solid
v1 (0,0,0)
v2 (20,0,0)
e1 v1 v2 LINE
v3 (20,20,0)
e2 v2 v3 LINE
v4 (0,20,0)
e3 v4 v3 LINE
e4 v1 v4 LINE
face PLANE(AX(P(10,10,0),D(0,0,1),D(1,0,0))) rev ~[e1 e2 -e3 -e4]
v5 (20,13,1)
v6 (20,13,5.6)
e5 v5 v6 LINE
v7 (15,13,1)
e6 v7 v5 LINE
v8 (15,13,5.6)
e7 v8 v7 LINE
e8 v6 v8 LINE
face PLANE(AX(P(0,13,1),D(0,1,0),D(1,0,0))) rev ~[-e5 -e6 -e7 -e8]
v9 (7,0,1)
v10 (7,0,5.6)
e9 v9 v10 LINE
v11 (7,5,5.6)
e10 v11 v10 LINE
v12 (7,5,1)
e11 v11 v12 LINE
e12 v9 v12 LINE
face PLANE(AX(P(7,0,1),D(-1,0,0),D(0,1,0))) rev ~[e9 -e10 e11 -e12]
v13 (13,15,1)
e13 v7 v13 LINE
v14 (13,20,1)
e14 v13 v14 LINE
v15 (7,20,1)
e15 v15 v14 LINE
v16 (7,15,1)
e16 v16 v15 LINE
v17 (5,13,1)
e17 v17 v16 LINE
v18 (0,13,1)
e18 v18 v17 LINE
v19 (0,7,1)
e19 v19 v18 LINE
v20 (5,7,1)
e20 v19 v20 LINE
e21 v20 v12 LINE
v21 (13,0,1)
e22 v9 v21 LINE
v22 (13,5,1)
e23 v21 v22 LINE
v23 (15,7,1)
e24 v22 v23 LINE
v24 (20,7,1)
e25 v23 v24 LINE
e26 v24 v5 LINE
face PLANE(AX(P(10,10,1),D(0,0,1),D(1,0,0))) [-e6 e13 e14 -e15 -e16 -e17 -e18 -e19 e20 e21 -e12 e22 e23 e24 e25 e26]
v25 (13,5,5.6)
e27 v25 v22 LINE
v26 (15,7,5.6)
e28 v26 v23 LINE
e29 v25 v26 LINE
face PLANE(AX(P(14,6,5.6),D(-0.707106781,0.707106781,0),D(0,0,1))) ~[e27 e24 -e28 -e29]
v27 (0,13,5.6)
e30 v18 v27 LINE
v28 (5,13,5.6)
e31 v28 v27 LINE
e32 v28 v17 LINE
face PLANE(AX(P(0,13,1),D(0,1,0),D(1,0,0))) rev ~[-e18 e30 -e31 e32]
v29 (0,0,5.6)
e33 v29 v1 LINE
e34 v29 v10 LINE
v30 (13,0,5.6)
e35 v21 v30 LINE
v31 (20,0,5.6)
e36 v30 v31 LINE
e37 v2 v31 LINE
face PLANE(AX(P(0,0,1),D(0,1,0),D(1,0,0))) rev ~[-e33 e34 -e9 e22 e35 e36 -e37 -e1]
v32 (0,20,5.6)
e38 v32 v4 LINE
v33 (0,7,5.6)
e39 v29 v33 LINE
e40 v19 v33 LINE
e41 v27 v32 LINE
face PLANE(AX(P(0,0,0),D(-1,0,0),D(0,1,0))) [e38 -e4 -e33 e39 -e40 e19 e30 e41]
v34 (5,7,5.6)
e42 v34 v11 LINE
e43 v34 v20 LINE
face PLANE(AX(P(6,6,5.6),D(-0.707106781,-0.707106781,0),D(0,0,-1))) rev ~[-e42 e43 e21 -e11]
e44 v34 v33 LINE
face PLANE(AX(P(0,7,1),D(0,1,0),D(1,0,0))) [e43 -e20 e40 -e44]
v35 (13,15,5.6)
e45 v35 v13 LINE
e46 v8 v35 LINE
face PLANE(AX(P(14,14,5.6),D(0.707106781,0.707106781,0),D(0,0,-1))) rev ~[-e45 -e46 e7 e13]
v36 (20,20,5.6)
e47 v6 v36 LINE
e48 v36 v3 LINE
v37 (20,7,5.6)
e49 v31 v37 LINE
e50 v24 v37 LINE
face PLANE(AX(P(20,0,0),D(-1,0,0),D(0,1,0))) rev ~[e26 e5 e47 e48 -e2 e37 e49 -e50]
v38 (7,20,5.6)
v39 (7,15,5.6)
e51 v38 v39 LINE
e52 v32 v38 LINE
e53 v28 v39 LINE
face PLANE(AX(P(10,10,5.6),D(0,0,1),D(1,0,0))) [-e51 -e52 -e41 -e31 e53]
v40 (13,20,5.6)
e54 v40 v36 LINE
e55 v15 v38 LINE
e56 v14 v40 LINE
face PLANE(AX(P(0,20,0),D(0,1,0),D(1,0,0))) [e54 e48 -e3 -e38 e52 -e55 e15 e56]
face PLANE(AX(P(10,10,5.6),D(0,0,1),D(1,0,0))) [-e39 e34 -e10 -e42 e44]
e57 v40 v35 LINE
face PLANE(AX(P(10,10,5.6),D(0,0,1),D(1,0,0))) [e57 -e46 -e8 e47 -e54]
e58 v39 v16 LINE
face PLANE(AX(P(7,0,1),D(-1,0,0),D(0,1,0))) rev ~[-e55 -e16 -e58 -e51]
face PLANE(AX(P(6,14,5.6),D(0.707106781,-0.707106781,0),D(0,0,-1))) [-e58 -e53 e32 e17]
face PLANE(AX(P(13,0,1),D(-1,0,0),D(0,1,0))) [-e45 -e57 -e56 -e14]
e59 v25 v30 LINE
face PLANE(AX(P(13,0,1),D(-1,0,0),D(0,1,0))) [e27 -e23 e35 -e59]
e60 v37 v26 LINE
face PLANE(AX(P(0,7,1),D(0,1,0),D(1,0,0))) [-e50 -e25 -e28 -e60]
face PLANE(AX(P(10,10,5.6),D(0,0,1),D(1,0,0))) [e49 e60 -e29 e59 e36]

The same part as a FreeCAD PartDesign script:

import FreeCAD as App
import Part
import Sketcher


def edges_at(feature, points):
    """Names of the edges that pass closest to the given points."""
    edges = feature.Shape.Edges
    near = lambda p: min(range(len(edges)), key=lambda i: edges[i].distToShape(Part.Vertex(*p))[0])
    return sorted({f"Edge{near(p) + 1}" for p in points})

doc = App.newDocument("Part")
params = doc.addObject("Spreadsheet::Sheet", "Params")
for row, (alias, value) in enumerate([
    ("sketch1_width", "20 mm"),
    ("sketch1_height", "6 mm"),
    ("pad1_length", "10 mm"),
    ("sketch2_width", "6 mm"),
    ("sketch2_height", "20 mm"),
    ("pad2_length", "10 mm"),
    ("sketch3_width", "20 mm"),
    ("pad3_length", "4.6 mm"),
    ("chamfer_size", "2 mm"),
    ("sketch4_width", "20 mm"),
    ("pad4_length", "1 mm"),
], start=1):
    params.set(f"A{row}", alias)
    params.set(f"B{row}", "=" + value)
    params.setAlias(f"B{row}", alias)

body = doc.addObject("PartDesign::Body", "Body")

# Sketch on XY plane
sketch1 = body.newObject("Sketcher::SketchObject", "Sketch")
sketch1.AttachmentSupport = (doc.getObject("XY_Plane"), [""])
sketch1.MapMode = "FlatFace"
sketch1.addGeometry([
    Part.LineSegment(App.Vector(0, 13, 0), App.Vector(0, 7, 0)),
    Part.LineSegment(App.Vector(0, 7, 0), App.Vector(20, 7, 0)),
    Part.LineSegment(App.Vector(20, 7, 0), App.Vector(20, 13, 0)),
    Part.LineSegment(App.Vector(20, 13, 0), App.Vector(0, 13, 0)),
], False)
sketch1.addConstraint([
    Sketcher.Constraint("Coincident", 0, 2, 1, 1),
    Sketcher.Constraint("Coincident", 1, 2, 2, 1),
    Sketcher.Constraint("Coincident", 2, 2, 3, 1),
    Sketcher.Constraint("Coincident", 3, 2, 0, 1),
    Sketcher.Constraint("Vertical", 0),
    Sketcher.Constraint("Horizontal", 1),
    Sketcher.Constraint("Vertical", 2),
    Sketcher.Constraint("Horizontal", 3),
    Sketcher.Constraint("PointOnObject", 0, 2, -2),
    Sketcher.Constraint("DistanceX", 1, 1, 1, 2, 20.0),
    Sketcher.Constraint("DistanceY", 0, 2, 0, 1, 6.0),
    Sketcher.Constraint("DistanceY", -1, 1, 0, 2, 7.0),
])
sketch1.setExpression("Constraints[9]", "Params.sketch1_width")
sketch1.setExpression("Constraints[10]", "Params.sketch1_height")
pad1 = body.newObject("PartDesign::Pad", "Pad")
pad1.Profile = sketch1
pad1.setExpression("Length", "Params.pad1_length")
body2 = doc.addObject("PartDesign::Body", "Body001")

# Sketch on XY plane
sketch2 = body2.newObject("Sketcher::SketchObject", "Sketch001")
sketch2.AttachmentSupport = (doc.getObject("XY_Plane001"), [""])
sketch2.MapMode = "FlatFace"
sketch2.addGeometry([
    Part.LineSegment(App.Vector(7, 20, 0), App.Vector(7, 0, 0)),
    Part.LineSegment(App.Vector(7, 0, 0), App.Vector(13, 0, 0)),
    Part.LineSegment(App.Vector(13, 0, 0), App.Vector(13, 20, 0)),
    Part.LineSegment(App.Vector(13, 20, 0), App.Vector(7, 20, 0)),
], False)
sketch2.addConstraint([
    Sketcher.Constraint("Coincident", 0, 2, 1, 1),
    Sketcher.Constraint("Coincident", 1, 2, 2, 1),
    Sketcher.Constraint("Coincident", 2, 2, 3, 1),
    Sketcher.Constraint("Coincident", 3, 2, 0, 1),
    Sketcher.Constraint("Vertical", 0),
    Sketcher.Constraint("Horizontal", 1),
    Sketcher.Constraint("Vertical", 2),
    Sketcher.Constraint("Horizontal", 3),
    Sketcher.Constraint("PointOnObject", 0, 2, -1),
    Sketcher.Constraint("DistanceX", 1, 1, 1, 2, 6.0),
    Sketcher.Constraint("DistanceY", 0, 2, 0, 1, 20.0),
    Sketcher.Constraint("DistanceX", -1, 1, 0, 2, 7.0),
])
sketch2.setExpression("Constraints[9]", "Params.sketch2_width")
sketch2.setExpression("Constraints[10]", "Params.sketch2_height")
pad2 = body2.newObject("PartDesign::Pad", "Pad001")
pad2.Profile = sketch2
pad2.setExpression("Length", "Params.pad2_length")
doc.recompute()

boolean = body2.newObject("PartDesign::Boolean", "Boolean")
boolean.Type = "Fuse"
boolean.addObjects([body])
body3 = doc.addObject("PartDesign::Body", "Body002")
body3.AllowCompound = True

# Sketch on XY plane
sketch3 = body3.newObject("Sketcher::SketchObject", "Sketch002")
sketch3.AttachmentSupport = (doc.getObject("XY_Plane002"), [""])
sketch3.MapMode = "FlatFace"
sketch3.addGeometry([
    Part.LineSegment(App.Vector(0, 20, 0), App.Vector(0, 0, 0)),
    Part.LineSegment(App.Vector(0, 0, 0), App.Vector(20, 0, 0)),
    Part.LineSegment(App.Vector(20, 0, 0), App.Vector(20, 20, 0)),
    Part.LineSegment(App.Vector(20, 20, 0), App.Vector(0, 20, 0)),
], False)
sketch3.addConstraint([
    Sketcher.Constraint("Coincident", 0, 2, 1, 1),
    Sketcher.Constraint("Coincident", 1, 2, 2, 1),
    Sketcher.Constraint("Coincident", 2, 2, 3, 1),
    Sketcher.Constraint("Coincident", 3, 2, 0, 1),
    Sketcher.Constraint("Vertical", 0),
    Sketcher.Constraint("Horizontal", 1),
    Sketcher.Constraint("Vertical", 2),
    Sketcher.Constraint("Horizontal", 3),
    Sketcher.Constraint("Coincident", 0, 2, -1, 1),
    Sketcher.Constraint("Equal", 3, 0),
    Sketcher.Constraint("DistanceX", 1, 1, 1, 2, 20.0),
])
sketch3.setExpression("Constraints[10]", "Params.sketch3_width")
pad3 = body3.newObject("PartDesign::Pad", "Pad002")
pad3.Profile = sketch3
pad3.setExpression("Length", "Params.pad3_length")
doc.recompute()

boolean2 = body3.newObject("PartDesign::Boolean", "Boolean001")
boolean2.Type = "Cut"
boolean2.addObjects([body2])
doc.recompute()

chamfer = body3.newObject("PartDesign::Chamfer", "Chamfer")
chamfer.Base = (boolean2, edges_at(boolean2, [
    (7, 7, 2.3),
    (7, 13, 2.3),
    (13, 13, 2.3),
    (13, 7, 2.3),
]))
chamfer.setExpression("Size", "Params.chamfer_size")
body4 = doc.addObject("PartDesign::Body", "Body003")
body4.AllowCompound = True
doc.recompute()

body3.Placement = App.Placement(App.Vector(0, 0, 1), App.Rotation(App.Vector(0, 0, 1), 0))
boolean3 = body4.newObject("PartDesign::Boolean", "Boolean002")
boolean3.Type = "Fuse"
boolean3.addObjects([body3])
body5 = doc.addObject("PartDesign::Body", "Body004")

# Sketch on XY plane
sketch4 = body5.newObject("Sketcher::SketchObject", "Sketch003")
sketch4.AttachmentSupport = (doc.getObject("XY_Plane004"), [""])
sketch4.MapMode = "FlatFace"
sketch4.addGeometry([
    Part.LineSegment(App.Vector(0, 20, 0), App.Vector(0, 0, 0)),
    Part.LineSegment(App.Vector(0, 0, 0), App.Vector(20, 0, 0)),
    Part.LineSegment(App.Vector(20, 0, 0), App.Vector(20, 20, 0)),
    Part.LineSegment(App.Vector(20, 20, 0), App.Vector(0, 20, 0)),
], False)
sketch4.addConstraint([
    Sketcher.Constraint("Coincident", 0, 2, 1, 1),
    Sketcher.Constraint("Coincident", 1, 2, 2, 1),
    Sketcher.Constraint("Coincident", 2, 2, 3, 1),
    Sketcher.Constraint("Coincident", 3, 2, 0, 1),
    Sketcher.Constraint("Vertical", 0),
    Sketcher.Constraint("Horizontal", 1),
    Sketcher.Constraint("Vertical", 2),
    Sketcher.Constraint("Horizontal", 3),
    Sketcher.Constraint("Coincident", 0, 2, -1, 1),
    Sketcher.Constraint("Equal", 3, 0),
    Sketcher.Constraint("DistanceX", 1, 1, 1, 2, 20.0),
])
sketch4.setExpression("Constraints[10]", "Params.sketch4_width")
pad4 = body5.newObject("PartDesign::Pad", "Pad003")
pad4.Profile = sketch4
pad4.setExpression("Length", "Params.pad4_length")
doc.recompute()

boolean4 = body5.newObject("PartDesign::Boolean", "Boolean003")
boolean4.Type = "Fuse"
boolean4.addObjects([body4])

doc.recompute()
